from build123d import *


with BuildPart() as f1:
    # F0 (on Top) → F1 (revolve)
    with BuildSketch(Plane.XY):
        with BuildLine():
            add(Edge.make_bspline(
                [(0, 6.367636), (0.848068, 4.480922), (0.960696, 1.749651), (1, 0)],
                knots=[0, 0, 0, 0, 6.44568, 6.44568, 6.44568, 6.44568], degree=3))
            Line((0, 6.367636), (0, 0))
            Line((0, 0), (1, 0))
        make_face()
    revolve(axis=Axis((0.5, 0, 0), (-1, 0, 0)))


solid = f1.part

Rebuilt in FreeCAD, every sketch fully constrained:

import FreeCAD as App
import Part
import Sketcher
from FreeCAD import Vector

doc = App.newDocument("Part")
body = doc.addObject("PartDesign::Body", "Body")

# Sketch on XY plane
sketch1 = body.newObject("Sketcher::SketchObject", "Sketch")
sketch1.AttachmentSupport = (doc.getObject("XY_Plane"), [""])
sketch1.MapMode = "FlatFace"
sketch1.addGeometry([
    Part.BSplineCurve([Vector(0, 6.367636, 0), Vector(0.848068, 4.480922, 0), Vector(0.960696, 1.749651, 0), Vector(1, 0, 0)], [4, 4], [0, 6.44568], False, 3, [1, 1, 1, 1], False),
    Part.LineSegment(Vector(0, 6.367636, 0), Vector(0, 0, 0)),
    Part.LineSegment(Vector(0, 0, 0), Vector(1, 0, 0)),
], False)
sketch1.addConstraint([
    Sketcher.Constraint("Block", 0),
    Sketcher.Constraint("Coincident", 0, 1, 1, 1),
    Sketcher.Constraint("Coincident", 1, 2, 2, 1),
    Sketcher.Constraint("Coincident", 2, 2, 0, 2),
    Sketcher.Constraint("Vertical", 1),
    Sketcher.Constraint("Horizontal", 2),
])
revolution = body.newObject("PartDesign::Revolution", "Revolution")
revolution.Profile = sketch1
revolution.ReferenceAxis = (sketch1, ["H_Axis"])
revolution.Angle = 360

doc.recompute()
